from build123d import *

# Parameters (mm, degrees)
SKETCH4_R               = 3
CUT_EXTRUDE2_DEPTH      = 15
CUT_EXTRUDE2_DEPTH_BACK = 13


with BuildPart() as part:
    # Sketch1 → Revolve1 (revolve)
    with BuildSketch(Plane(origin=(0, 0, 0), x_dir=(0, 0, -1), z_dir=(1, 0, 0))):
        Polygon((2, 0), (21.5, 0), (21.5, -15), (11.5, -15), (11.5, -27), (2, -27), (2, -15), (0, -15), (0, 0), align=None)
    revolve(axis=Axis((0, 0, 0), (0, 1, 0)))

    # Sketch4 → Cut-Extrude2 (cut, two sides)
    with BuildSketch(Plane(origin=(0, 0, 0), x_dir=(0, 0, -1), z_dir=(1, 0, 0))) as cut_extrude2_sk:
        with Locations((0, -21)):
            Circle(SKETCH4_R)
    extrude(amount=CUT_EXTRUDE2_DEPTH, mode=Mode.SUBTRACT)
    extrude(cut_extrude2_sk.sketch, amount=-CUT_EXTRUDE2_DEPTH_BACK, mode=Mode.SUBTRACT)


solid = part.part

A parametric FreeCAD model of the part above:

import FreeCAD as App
import Part
import Sketcher

V = App.Vector


def add_polygon(sketch, points):
    """Adds a closed chain of lines whose ends are joined by coincident constraints."""
    first, n = sketch.GeometryCount, len(points)
    for a, b in zip(points, points[1:] + points[:1]):
        sketch.addGeometry(Part.LineSegment(App.Vector(*a, 0), App.Vector(*b, 0)), False)
    for i in range(n):
        sketch.addConstraint(Sketcher.Constraint("Coincident", first + i, 2, first + (i + 1) % n, 1))

doc = App.newDocument("Part")
body = doc.addObject("PartDesign::Body", "Body")

# Sketch on YZ plane
sketch1 = doc.addObject("Sketcher::SketchObject", "Sketch")
body.addObject(sketch1)
sketch1.AttachmentSupport = (doc.YZ_Plane, [""])
sketch1.MapMode = "FlatFace"
add_polygon(sketch1, [(0, -21.5), (0, 0), (-15, 0), (-15, -2), (-27, -2), (-27, -11.5), (-15, -11.5), (-15, -21.5)])  # lines 0-7
sketch1.addConstraint([
    Sketcher.Constraint("Vertical", 0),
    Sketcher.Constraint("Horizontal", 1),
    Sketcher.Constraint("Vertical", 2),
    Sketcher.Constraint("Horizontal", 3),
    Sketcher.Constraint("Vertical", 4),
    Sketcher.Constraint("Horizontal", 5),
    Sketcher.Constraint("Vertical", 6),
    Sketcher.Constraint("Horizontal", 7),
    Sketcher.Constraint("Coincident", 0, 2, -1, 1),
    Sketcher.Constraint("Vertical", 2, 2, 5, 2),
    Sketcher.Constraint("DistanceX", 1, 2, 1, 1, 15.0),
    Sketcher.Constraint("DistanceX", 3, 2, 3, 1, 12.0),
    Sketcher.Constraint("DistanceY", 2, 2, 2, 1, 2.0),
    Sketcher.Constraint("DistanceY", 6, 2, 6, 1, 10.0),
    Sketcher.Constraint("DistanceY", 0, 1, 0, 2, 21.5),
])
revolution = doc.addObject("PartDesign::Revolution", "Revolution")
body.addObject(revolution)
revolution.Profile = sketch1
revolution.ReferenceAxis = (sketch1, ["H_Axis"])
revolution.Angle = 360

# Sketch on YZ plane
sketch2 = doc.addObject("Sketcher::SketchObject", "Sketch001")
body.addObject(sketch2)
sketch2.AttachmentSupport = (doc.YZ_Plane, [""])
sketch2.MapMode = "FlatFace"
sketch2.addGeometry(Part.Circle(V(-21, 0, 0), V(0, 0, 1), 3), False)
sketch2.addConstraint([
    Sketcher.Constraint("PointOnObject", 0, 3, -1),
    Sketcher.Constraint("Diameter", 0, 6.0),
    Sketcher.Constraint("DistanceX", 0, 3, -1, 1, 21.0),
])
pocket1 = doc.addObject("PartDesign::Pocket", "Pocket")
body.addObject(pocket1)
pocket1.Profile = sketch2
pocket1.Type = "ThroughAll"
pocket1.Midplane = True

doc.recompute()
